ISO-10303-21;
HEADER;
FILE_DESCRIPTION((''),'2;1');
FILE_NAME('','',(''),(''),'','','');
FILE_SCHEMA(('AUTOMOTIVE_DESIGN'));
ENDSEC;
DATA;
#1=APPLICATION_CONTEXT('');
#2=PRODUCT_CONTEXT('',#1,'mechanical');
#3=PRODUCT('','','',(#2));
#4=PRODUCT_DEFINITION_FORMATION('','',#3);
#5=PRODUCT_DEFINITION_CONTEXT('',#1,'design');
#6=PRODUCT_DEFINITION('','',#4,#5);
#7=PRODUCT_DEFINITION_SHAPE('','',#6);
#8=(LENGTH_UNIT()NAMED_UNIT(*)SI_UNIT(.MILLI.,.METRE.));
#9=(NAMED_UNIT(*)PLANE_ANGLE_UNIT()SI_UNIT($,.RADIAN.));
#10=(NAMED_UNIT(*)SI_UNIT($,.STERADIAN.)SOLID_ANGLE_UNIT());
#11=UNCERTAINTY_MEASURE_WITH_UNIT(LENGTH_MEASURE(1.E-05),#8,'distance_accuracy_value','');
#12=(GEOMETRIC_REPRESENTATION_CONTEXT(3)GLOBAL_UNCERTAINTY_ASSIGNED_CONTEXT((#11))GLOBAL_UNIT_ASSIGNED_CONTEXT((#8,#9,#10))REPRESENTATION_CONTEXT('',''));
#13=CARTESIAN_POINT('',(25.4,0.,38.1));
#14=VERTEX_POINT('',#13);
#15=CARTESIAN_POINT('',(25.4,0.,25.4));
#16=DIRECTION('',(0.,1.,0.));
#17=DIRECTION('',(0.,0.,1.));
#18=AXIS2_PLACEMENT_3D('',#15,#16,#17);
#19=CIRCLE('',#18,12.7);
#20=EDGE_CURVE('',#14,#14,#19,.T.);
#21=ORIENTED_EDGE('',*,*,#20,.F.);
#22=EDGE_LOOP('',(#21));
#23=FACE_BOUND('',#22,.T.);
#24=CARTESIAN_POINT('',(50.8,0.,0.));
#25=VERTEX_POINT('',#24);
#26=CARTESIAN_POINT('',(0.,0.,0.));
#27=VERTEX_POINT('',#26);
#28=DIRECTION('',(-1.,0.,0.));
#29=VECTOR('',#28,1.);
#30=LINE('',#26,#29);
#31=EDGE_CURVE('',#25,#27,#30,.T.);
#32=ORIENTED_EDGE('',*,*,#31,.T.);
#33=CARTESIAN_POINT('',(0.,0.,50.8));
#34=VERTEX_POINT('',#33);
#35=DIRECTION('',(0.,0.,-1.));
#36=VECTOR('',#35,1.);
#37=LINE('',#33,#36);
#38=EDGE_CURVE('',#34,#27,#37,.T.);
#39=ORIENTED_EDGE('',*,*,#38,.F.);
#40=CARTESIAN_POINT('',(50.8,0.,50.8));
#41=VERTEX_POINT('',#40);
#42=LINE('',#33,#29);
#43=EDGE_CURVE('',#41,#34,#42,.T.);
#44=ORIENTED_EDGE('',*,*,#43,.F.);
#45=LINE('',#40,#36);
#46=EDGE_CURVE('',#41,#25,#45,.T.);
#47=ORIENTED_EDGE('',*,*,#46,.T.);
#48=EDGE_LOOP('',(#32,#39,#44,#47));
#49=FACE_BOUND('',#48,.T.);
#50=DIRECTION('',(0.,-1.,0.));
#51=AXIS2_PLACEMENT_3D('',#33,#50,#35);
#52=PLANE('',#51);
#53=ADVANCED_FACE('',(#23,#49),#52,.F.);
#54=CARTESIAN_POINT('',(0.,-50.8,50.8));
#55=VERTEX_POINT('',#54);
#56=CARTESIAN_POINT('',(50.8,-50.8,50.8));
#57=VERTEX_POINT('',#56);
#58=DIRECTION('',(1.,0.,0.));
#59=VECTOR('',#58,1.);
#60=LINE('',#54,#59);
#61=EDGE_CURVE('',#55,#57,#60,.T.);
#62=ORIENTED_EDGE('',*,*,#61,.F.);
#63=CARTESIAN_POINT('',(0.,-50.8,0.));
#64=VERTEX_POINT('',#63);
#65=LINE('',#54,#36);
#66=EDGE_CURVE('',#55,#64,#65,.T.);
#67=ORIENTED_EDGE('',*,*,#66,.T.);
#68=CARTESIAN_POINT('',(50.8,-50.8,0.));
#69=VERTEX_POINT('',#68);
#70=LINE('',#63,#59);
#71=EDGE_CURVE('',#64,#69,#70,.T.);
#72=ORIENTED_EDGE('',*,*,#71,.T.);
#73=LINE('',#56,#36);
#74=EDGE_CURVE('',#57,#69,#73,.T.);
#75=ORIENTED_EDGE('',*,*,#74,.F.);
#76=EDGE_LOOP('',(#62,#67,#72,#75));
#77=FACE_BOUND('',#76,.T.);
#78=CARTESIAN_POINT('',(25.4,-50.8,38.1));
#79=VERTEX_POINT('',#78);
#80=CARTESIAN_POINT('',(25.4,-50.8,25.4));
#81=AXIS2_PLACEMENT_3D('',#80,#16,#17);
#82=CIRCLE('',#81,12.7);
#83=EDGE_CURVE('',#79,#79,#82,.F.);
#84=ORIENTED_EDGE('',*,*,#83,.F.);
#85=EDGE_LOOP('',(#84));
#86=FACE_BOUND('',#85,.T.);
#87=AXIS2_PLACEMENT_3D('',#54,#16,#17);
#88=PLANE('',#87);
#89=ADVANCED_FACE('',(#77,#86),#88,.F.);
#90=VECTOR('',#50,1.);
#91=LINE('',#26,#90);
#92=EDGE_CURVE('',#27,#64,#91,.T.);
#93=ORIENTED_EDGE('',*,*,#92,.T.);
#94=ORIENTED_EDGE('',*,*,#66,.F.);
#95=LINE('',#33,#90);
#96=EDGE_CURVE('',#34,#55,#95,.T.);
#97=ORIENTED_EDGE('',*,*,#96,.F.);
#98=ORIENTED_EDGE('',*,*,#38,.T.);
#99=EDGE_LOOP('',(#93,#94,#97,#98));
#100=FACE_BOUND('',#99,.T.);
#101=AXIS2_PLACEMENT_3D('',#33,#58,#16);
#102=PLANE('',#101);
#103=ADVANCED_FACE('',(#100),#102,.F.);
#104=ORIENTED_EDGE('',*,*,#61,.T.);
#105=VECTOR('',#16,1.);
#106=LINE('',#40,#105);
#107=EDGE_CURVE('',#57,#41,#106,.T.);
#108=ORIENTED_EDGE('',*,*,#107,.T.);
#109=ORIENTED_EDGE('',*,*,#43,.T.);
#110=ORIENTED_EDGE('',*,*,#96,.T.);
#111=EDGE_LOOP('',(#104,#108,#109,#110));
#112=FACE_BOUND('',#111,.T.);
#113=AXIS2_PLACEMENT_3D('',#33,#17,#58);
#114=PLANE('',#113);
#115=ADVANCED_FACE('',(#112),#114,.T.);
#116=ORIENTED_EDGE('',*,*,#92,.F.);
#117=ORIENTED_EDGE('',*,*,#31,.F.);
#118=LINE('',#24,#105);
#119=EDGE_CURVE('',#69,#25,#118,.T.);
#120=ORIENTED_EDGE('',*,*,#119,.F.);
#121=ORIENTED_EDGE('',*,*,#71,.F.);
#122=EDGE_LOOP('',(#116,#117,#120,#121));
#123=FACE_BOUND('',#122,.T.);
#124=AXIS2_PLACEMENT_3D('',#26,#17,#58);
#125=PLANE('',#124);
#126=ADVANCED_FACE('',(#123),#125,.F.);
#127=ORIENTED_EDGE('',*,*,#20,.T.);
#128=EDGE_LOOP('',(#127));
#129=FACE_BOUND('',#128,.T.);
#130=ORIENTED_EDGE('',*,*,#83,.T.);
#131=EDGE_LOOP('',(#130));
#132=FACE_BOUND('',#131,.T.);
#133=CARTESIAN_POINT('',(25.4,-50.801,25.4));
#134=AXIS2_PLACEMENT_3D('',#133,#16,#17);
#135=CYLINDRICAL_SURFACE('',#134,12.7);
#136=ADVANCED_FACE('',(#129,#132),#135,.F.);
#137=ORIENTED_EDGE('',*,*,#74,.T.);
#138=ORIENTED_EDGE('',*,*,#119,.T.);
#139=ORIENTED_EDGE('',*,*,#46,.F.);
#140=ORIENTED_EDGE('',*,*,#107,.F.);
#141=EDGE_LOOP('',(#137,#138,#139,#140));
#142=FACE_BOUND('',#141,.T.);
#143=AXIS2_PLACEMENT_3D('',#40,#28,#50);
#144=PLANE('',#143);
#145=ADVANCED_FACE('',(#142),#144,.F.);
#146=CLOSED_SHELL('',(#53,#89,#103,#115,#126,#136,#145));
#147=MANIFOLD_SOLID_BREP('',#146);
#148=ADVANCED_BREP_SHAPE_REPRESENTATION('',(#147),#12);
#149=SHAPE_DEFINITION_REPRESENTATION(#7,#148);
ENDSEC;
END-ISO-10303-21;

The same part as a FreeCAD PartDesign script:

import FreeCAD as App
import Part
import Sketcher
from FreeCAD import Vector
Q = App.Units.Quantity

doc = App.newDocument("Part")
body = doc.addObject("PartDesign::Body", "Body")

sketch1 = body.newObject("Sketcher::SketchObject", "Sketch")
sketch1.AttachmentSupport = (doc.getObject("XY_Plane"), [""])
sketch1.MapMode = "FlatFace"
sketch1.addGeometry(Part.LineSegment(Vector(0, 0, 0), Vector(0, -50.8, 0)), False)
sketch1.addGeometry(Part.LineSegment(Vector(0, -50.8, 0), Vector(50.8, -50.8, 0)), False)
sketch1.addGeometry(Part.LineSegment(Vector(50.8, -50.8, 0), Vector(50.8, 0, 0)), False)
sketch1.addGeometry(Part.LineSegment(Vector(50.8, 0, 0), Vector(0, 0, 0)), False)
sketch1.addConstraint(Sketcher.Constraint("Coincident", 0, 2, 1, 1))
sketch1.addConstraint(Sketcher.Constraint("Coincident", 1, 2, 2, 1))
sketch1.addConstraint(Sketcher.Constraint("Coincident", 2, 2, 3, 1))
sketch1.addConstraint(Sketcher.Constraint("Coincident", 3, 2, 0, 1))
sketch1.addConstraint(Sketcher.Constraint("Vertical", 0))
sketch1.addConstraint(Sketcher.Constraint("Horizontal", 1))
sketch1.addConstraint(Sketcher.Constraint("Vertical", 2))
sketch1.addConstraint(Sketcher.Constraint("Horizontal", 3))
sketch1.addConstraint(Sketcher.Constraint("Coincident", 3, 2, -1, 1))
sketch1.addConstraint(Sketcher.Constraint("Equal", 3, 0))
sketch1.addConstraint(Sketcher.Constraint("DistanceX", 1, 1, 1, 2, Q("2 in")))
pad1 = body.newObject("PartDesign::Pad", "Pad")
pad1.Profile = sketch1
pad1.Length = Q("2 in")

sketch2 = body.newObject("Sketcher::SketchObject", "Sketch001")
sketch2.AttachmentSupport = (doc.getObject("XZ_Plane"), [""])
sketch2.MapMode = "FlatFace"
sketch2.addGeometry(Part.Circle(Vector(25.4, 25.4, 0), Vector(0, 0, 1), 12.7), False)
sketch2.addConstraint(Sketcher.Constraint("Diameter", 0, Q("1 in")))
sketch2.addConstraint(Sketcher.Constraint("DistanceX", -1, 1, 0, 3, Q("1 in")))
sketch2.addConstraint(Sketcher.Constraint("DistanceY", -1, 1, 0, 3, Q("1 in")))
pocket1 = body.newObject("PartDesign::Pocket", "Pocket")
pocket1.Profile = sketch2
pocket1.Type = "UpToFirst"
pocket1.Reversed = True

doc.recompute()
